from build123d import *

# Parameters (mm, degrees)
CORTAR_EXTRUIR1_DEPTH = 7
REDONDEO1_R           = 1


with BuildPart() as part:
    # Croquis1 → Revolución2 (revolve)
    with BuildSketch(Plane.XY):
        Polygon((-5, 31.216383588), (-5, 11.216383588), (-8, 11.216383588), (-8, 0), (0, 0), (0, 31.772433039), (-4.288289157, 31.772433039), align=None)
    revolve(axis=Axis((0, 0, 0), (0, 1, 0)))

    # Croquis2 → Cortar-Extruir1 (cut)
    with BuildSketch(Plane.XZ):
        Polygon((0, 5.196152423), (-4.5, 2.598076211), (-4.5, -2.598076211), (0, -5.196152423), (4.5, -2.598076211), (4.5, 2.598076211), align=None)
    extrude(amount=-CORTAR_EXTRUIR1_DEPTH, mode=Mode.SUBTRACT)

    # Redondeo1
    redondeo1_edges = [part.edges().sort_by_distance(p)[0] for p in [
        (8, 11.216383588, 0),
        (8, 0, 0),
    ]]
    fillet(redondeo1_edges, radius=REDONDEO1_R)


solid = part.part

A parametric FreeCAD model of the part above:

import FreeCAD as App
import Part
import Sketcher

V = App.Vector
Q = App.Units.Quantity


def edges_at(feature, points):
    """Names of the edges that pass closest to the given points."""
    edges = feature.Shape.Edges
    near = lambda p: min(range(len(edges)), key=lambda i: edges[i].distToShape(Part.Vertex(*p))[0])
    return sorted({f"Edge{near(p) + 1}" for p in points})


def add_polygon(sketch, points):
    """Adds a closed chain of lines whose ends are joined by coincident constraints."""
    first, n = sketch.GeometryCount, len(points)
    for a, b in zip(points, points[1:] + points[:1]):
        sketch.addGeometry(Part.LineSegment(App.Vector(*a, 0), App.Vector(*b, 0)), False)
    for i in range(n):
        sketch.addConstraint(Sketcher.Constraint("Coincident", first + i, 2, first + (i + 1) % n, 1))

doc = App.newDocument("Part")
params = doc.addObject("Spreadsheet::Sheet", "Params")
for row, (alias, value) in enumerate([
    ("sketch1_width", "3 mm"),
    ("sketch1_width2", "8 mm"),
    ("sketch1_height", "20 mm"),
    ("revolution_angle", "360 deg"),
    ("pocket1_length", "7 mm"),
    ("fillet_radius", "1 mm"),
], start=1):
    params.set(f"A{row}", alias)
    params.set(f"B{row}", "=" + value)
    params.setAlias(f"B{row}", alias)

body = doc.addObject("PartDesign::Body", "Body")

# Sketch on XY plane
sketch1 = body.newObject("Sketcher::SketchObject", "Sketch")
sketch1.AttachmentSupport = (doc.getObject("XY_Plane"), [""])
sketch1.MapMode = "FlatFace"
add_polygon(sketch1, [(-5, 31.216384), (-5, 11.216384), (-8, 11.216384), (-8, 0), (0, 0), (0, 31.772433), (-4.288289, 31.772433)])  # lines 0-6
sketch1.addConstraint([
    Sketcher.Constraint("Vertical", 0),
    Sketcher.Constraint("Horizontal", 1),
    Sketcher.Constraint("Vertical", 2),
    Sketcher.Constraint("Horizontal", 3),
    Sketcher.Constraint("Vertical", 4),
    Sketcher.Constraint("Horizontal", 5),
    Sketcher.Constraint("Coincident", 3, 2, -1, 1),
    Sketcher.Constraint("DistanceX", 1, 2, 1, 1, 3.0),
    Sketcher.Constraint("DistanceX", 3, 1, 3, 2, 8.0),
    Sketcher.Constraint("DistanceY", 0, 2, 0, 1, 20.0),
    Sketcher.Constraint("Angle", 6, Q("-142 deg")),
    Sketcher.Constraint("DistanceX", 5, 2, 5, 1, 4.288289),
    Sketcher.Constraint("DistanceY", 2, 2, 2, 1, 11.216384),
])
sketch1.setExpression("Constraints[14]", "Params.sketch1_width")
sketch1.setExpression("Constraints[15]", "Params.sketch1_width2")
sketch1.setExpression("Constraints[16]", "Params.sketch1_height")
revolution = body.newObject("PartDesign::Revolution", "Revolution")
revolution.Profile = sketch1
revolution.ReferenceAxis = (sketch1, ["V_Axis"])
revolution.setExpression("Angle", "Params.revolution_angle")

# Sketch on XZ plane
sketch2 = body.newObject("Sketcher::SketchObject", "Sketch001")
sketch2.AttachmentSupport = (doc.getObject("XZ_Plane"), [""])
sketch2.MapMode = "FlatFace"
add_polygon(sketch2, [(0, 5.196152), (-4.5, 2.598076), (-4.5, -2.598076), (0, -5.196152), (4.5, -2.598076), (4.5, 2.598076)])  # lines 0-5
sketch2.addConstraint([
    Sketcher.Constraint("Vertical", 1),
    Sketcher.Constraint("Vertical", 4),
    Sketcher.Constraint("Symmetric", 0, 2, 3, 2, -1, 1),
    Sketcher.Constraint("Symmetric", 2, 2, 5, 2, -1, 1),
    Sketcher.Constraint("PointOnObject", 2, 2, -2),
    Sketcher.Constraint("Parallel", 2, 5),
    Sketcher.Constraint("Horizontal", 1, 2, 3, 2),
    Sketcher.Constraint("Angle", 0, Q("-150 deg")),
    Sketcher.Constraint("DistanceX", 1, 2, 3, 2, 9.0),
    Sketcher.Constraint("DistanceY", 1, 2, 1, 1, 5.196152),
])
pocket1 = body.newObject("PartDesign::Pocket", "Pocket")
pocket1.Profile = sketch2
pocket1.setExpression("Length", "Params.pocket1_length")
doc.recompute()

fillet = body.newObject("PartDesign::Fillet", "Fillet")
fillet.Base = (pocket1, edges_at(pocket1, [(8, 11.216, 0), (8, 0, 0)]))
fillet.setExpression("Radius", "Params.fillet_radius")

doc.recompute()
